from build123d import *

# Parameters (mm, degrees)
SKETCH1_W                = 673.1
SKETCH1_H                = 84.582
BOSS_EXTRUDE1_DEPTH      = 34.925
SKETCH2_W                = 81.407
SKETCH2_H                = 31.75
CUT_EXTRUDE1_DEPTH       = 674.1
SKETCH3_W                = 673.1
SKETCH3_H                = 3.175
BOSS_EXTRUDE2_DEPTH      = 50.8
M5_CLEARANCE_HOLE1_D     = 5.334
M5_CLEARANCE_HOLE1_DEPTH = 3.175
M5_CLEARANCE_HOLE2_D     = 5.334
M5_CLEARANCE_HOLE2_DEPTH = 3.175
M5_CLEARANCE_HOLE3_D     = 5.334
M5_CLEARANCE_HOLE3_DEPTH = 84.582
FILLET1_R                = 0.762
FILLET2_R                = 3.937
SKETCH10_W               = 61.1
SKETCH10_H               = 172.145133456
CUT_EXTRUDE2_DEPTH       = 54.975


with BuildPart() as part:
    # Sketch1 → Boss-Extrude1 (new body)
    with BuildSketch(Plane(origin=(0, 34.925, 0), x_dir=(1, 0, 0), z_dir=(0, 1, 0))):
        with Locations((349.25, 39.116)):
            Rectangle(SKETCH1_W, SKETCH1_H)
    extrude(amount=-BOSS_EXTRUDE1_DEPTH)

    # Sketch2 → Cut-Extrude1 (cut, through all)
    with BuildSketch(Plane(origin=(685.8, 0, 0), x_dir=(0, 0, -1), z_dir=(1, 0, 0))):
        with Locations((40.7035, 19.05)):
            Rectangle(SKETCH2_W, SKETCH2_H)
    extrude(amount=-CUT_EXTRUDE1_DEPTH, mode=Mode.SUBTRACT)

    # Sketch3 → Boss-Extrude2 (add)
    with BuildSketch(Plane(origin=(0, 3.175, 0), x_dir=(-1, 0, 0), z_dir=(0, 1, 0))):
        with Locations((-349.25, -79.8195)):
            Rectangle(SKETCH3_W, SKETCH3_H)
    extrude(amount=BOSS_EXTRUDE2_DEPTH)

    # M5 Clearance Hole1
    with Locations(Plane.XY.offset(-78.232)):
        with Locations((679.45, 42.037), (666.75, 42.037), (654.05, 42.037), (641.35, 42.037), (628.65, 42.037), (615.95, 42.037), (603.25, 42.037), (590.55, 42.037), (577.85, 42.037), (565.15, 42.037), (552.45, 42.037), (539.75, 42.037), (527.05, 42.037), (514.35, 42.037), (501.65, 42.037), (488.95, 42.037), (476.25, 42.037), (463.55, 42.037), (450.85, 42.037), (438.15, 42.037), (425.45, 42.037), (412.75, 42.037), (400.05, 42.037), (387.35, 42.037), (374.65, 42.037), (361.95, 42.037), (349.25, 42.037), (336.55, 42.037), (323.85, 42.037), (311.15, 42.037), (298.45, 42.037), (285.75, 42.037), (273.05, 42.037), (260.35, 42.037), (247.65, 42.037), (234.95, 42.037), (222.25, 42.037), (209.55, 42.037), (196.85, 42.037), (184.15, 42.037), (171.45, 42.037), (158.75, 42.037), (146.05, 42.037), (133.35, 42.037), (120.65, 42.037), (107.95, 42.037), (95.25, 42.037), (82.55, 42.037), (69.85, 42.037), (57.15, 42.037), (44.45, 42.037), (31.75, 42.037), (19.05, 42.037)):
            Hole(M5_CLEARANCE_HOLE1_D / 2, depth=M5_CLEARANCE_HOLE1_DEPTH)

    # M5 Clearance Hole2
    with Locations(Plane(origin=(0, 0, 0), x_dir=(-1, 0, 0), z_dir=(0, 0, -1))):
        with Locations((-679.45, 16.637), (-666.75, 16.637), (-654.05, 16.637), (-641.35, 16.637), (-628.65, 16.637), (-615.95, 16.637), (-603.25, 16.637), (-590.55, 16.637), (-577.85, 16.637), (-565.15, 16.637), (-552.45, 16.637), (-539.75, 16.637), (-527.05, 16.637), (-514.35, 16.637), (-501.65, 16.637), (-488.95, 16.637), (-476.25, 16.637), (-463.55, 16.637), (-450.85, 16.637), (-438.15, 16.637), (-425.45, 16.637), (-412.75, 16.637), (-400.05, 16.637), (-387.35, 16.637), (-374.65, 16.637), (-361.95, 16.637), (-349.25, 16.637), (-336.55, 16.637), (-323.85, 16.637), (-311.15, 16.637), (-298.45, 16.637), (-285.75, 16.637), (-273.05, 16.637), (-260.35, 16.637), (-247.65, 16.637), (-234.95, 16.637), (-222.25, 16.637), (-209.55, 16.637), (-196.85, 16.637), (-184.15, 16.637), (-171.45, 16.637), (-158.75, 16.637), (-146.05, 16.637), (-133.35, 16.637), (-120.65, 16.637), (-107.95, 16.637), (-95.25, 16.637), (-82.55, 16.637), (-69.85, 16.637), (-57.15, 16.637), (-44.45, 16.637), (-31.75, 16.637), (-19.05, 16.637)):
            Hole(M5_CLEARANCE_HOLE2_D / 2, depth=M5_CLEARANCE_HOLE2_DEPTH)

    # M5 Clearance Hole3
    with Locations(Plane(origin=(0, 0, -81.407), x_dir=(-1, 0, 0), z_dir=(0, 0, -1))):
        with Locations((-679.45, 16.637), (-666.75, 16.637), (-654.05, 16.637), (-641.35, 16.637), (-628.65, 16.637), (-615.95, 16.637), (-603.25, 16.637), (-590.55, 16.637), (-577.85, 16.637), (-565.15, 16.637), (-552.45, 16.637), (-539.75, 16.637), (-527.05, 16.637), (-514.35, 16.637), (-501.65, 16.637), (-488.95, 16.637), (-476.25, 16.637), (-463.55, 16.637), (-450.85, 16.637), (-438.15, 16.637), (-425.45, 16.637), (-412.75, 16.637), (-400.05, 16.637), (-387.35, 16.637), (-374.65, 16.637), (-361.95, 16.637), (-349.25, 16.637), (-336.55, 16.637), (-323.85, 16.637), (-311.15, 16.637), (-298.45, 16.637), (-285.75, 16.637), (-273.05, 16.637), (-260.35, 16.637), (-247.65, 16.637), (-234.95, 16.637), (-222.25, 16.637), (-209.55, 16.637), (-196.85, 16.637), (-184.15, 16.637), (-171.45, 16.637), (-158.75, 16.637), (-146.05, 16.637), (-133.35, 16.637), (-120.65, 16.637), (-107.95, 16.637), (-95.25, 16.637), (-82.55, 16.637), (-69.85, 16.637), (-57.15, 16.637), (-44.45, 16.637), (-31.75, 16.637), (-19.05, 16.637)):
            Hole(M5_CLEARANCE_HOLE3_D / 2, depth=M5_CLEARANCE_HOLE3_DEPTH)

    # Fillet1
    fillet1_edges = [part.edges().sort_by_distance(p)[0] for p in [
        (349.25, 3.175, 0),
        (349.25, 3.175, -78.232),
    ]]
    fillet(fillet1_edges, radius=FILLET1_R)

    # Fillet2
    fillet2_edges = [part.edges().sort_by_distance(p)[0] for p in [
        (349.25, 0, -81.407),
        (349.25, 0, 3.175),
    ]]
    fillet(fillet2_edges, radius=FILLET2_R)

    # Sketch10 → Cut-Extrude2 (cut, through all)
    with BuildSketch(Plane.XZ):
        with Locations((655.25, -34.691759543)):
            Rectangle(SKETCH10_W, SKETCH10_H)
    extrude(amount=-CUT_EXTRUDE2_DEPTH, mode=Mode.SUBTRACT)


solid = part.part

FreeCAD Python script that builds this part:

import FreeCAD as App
import Part
import Sketcher

V = App.Vector
Q = App.Units.Quantity


def edges_at(feature, points):
    """Names of the edges that pass closest to the given points."""
    edges = feature.Shape.Edges
    near = lambda p: min(range(len(edges)), key=lambda i: edges[i].distToShape(Part.Vertex(*p))[0])
    return sorted({f"Edge{near(p) + 1}" for p in points})

doc = App.newDocument("Part")
body = doc.addObject("PartDesign::Body", "Body")

# Sketch on XZ plane
sketch1 = body.newObject("Sketcher::SketchObject", "Sketch")
sketch1.AttachmentSupport = (doc.getObject("XZ_Plane"), [""])
sketch1.MapMode = "FlatFace"
sketch1.AttachmentOffset = App.Placement(V(0, 0, -1.375 * 25.4), App.Rotation())
sketch1.addGeometry([
    Part.LineSegment(V(12.7, -81.407, 0), V(12.7, 3.175, 0)),
    Part.LineSegment(V(12.7, 3.175, 0), V(685.8, 3.175, 0)),
    Part.LineSegment(V(685.8, 3.175, 0), V(685.8, -81.407, 0)),
    Part.LineSegment(V(685.8, -81.407, 0), V(12.7, -81.407, 0)),
], False)
sketch1.addConstraint([
    Sketcher.Constraint("Coincident", 0, 2, 1, 1),
    Sketcher.Constraint("Coincident", 1, 2, 2, 1),
    Sketcher.Constraint("Coincident", 2, 2, 3, 1),
    Sketcher.Constraint("Coincident", 3, 2, 0, 1),
    Sketcher.Constraint("Vertical", 0),
    Sketcher.Constraint("Horizontal", 1),
    Sketcher.Constraint("Vertical", 2),
    Sketcher.Constraint("Horizontal", 3),
    Sketcher.Constraint("DistanceX", 1, 1, 1, 2, Q("26.5 in")),
    Sketcher.Constraint("DistanceX", -1, 1, 1, 2, Q("27 in")),
    Sketcher.Constraint("DistanceY", 0, 1, 0, 2, Q("3.33 in")),
    Sketcher.Constraint("DistanceY", -1, 1, 0, 2, Q("0.125 in")),
])
pad1 = body.newObject("PartDesign::Pad", "Pad")
pad1.Profile = sketch1
pad1.Length = Q("1.375 in")

# Sketch on YZ plane
sketch2 = body.newObject("Sketcher::SketchObject", "Sketch001")
sketch2.AttachmentSupport = (doc.getObject("YZ_Plane"), [""])
sketch2.MapMode = "FlatFace"
sketch2.AttachmentOffset = App.Placement(V(0, 0, 27 * 25.4), App.Rotation())
sketch2.addGeometry([
    Part.LineSegment(V(34.925, 0, 0), V(3.175, 0, 0)),
    Part.LineSegment(V(3.175, 0, 0), V(3.175, -81.407, 0)),
    Part.LineSegment(V(3.175, -81.407, 0), V(34.925, -81.407, 0)),
    Part.LineSegment(V(34.925, -81.407, 0), V(34.925, 0, 0)),
], False)
sketch2.addConstraint([
    Sketcher.Constraint("Coincident", 0, 2, 1, 1),
    Sketcher.Constraint("Coincident", 1, 2, 2, 1),
    Sketcher.Constraint("Coincident", 2, 2, 3, 1),
    Sketcher.Constraint("Coincident", 3, 2, 0, 1),
    Sketcher.Constraint("Horizontal", 0),
    Sketcher.Constraint("Vertical", 1),
    Sketcher.Constraint("Horizontal", 2),
    Sketcher.Constraint("Vertical", 3),
    Sketcher.Constraint("PointOnObject", 0, 2, -1),
    Sketcher.Constraint("DistanceX", 0, 2, 0, 1, Q("1.25 in")),
    Sketcher.Constraint("DistanceY", 1, 2, 1, 1, Q("3.205 in")),
    Sketcher.Constraint("DistanceX", -1, 1, 0, 2, Q("0.125 in")),
])
pocket1 = body.newObject("PartDesign::Pocket", "Pocket")
pocket1.Profile = sketch2
pocket1.Type = "ThroughAll"

# Sketch on XZ plane
sketch3 = body.newObject("Sketcher::SketchObject", "Sketch002")
sketch3.AttachmentSupport = (doc.getObject("XZ_Plane"), [""])
sketch3.MapMode = "FlatFace"
sketch3.AttachmentOffset = App.Placement(V(0, 0, -0.125 * 25.4), App.Rotation())
sketch3.addGeometry([
    Part.LineSegment(V(685.8, -78.232, 0), V(685.8, -81.407, 0)),
    Part.LineSegment(V(685.8, -81.407, 0), V(12.7, -81.407, 0)),
    Part.LineSegment(V(12.7, -81.407, 0), V(12.7, -78.232, 0)),
    Part.LineSegment(V(12.7, -78.232, 0), V(685.8, -78.232, 0)),
], False)
sketch3.addConstraint([
    Sketcher.Constraint("Coincident", 0, 2, 1, 1),
    Sketcher.Constraint("Coincident", 1, 2, 2, 1),
    Sketcher.Constraint("Coincident", 2, 2, 3, 1),
    Sketcher.Constraint("Coincident", 3, 2, 0, 1),
    Sketcher.Constraint("Vertical", 0),
    Sketcher.Constraint("Horizontal", 1),
    Sketcher.Constraint("Vertical", 2),
    Sketcher.Constraint("Horizontal", 3),
    Sketcher.Constraint("DistanceX", 1, 2, 1, 1, Q("26.5 in")),
    Sketcher.Constraint("DistanceX", -1, 1, 0, 2, Q("27 in")),
    Sketcher.Constraint("DistanceY", 0, 2, 0, 1, Q("0.125 in")),
    Sketcher.Constraint("DistanceY", 2, 2, -1, 1, Q("3.08 in")),
])
pad2 = body.newObject("PartDesign::Pad", "Pad001")
pad2.Profile = sketch3
pad2.Length = Q("2 in")
pad2.Reversed = True

# Sketch on XY plane
sketch4 = body.newObject("Sketcher::SketchObject", "Sketch003")
sketch4.AttachmentSupport = (doc.getObject("XY_Plane"), [""])
sketch4.MapMode = "FlatFace"
sketch4.AttachmentOffset = App.Placement(V(0, 0, -3.08 * 25.4), App.Rotation())
sketch4.addGeometry([
    Part.Circle(V(679.45, 42.037, 0), V(0, 0, 1), 2.667),  # 0
    Part.Circle(V(666.75, 42.037, 0), V(0, 0, 1), 2.667),  # 1
    Part.Circle(V(654.05, 42.037, 0), V(0, 0, 1), 2.667),  # 2
    Part.Circle(V(641.35, 42.037, 0), V(0, 0, 1), 2.667),  # 3
    Part.Circle(V(628.65, 42.037, 0), V(0, 0, 1), 2.667),  # 4
    Part.Circle(V(615.95, 42.037, 0), V(0, 0, 1), 2.667),  # 5
    Part.Circle(V(603.25, 42.037, 0), V(0, 0, 1), 2.667),  # 6
    Part.Circle(V(590.55, 42.037, 0), V(0, 0, 1), 2.667),  # 7
    Part.Circle(V(577.85, 42.037, 0), V(0, 0, 1), 2.667),  # 8
    Part.Circle(V(565.15, 42.037, 0), V(0, 0, 1), 2.667),  # 9
    Part.Circle(V(552.45, 42.037, 0), V(0, 0, 1), 2.667),  # 10
    Part.Circle(V(539.75, 42.037, 0), V(0, 0, 1), 2.667),  # 11
    Part.Circle(V(527.05, 42.037, 0), V(0, 0, 1), 2.667),  # 12
    Part.Circle(V(514.35, 42.037, 0), V(0, 0, 1), 2.667),  # 13
    Part.Circle(V(501.65, 42.037, 0), V(0, 0, 1), 2.667),  # 14
    Part.Circle(V(488.95, 42.037, 0), V(0, 0, 1), 2.667),  # 15
    Part.Circle(V(476.25, 42.037, 0), V(0, 0, 1), 2.667),  # 16
    Part.Circle(V(463.55, 42.037, 0), V(0, 0, 1), 2.667),  # 17
    Part.Circle(V(450.85, 42.037, 0), V(0, 0, 1), 2.667),  # 18
    Part.Circle(V(438.15, 42.037, 0), V(0, 0, 1), 2.667),  # 19
    Part.Circle(V(425.45, 42.037, 0), V(0, 0, 1), 2.667),  # 20
    Part.Circle(V(412.75, 42.037, 0), V(0, 0, 1), 2.667),  # 21
    Part.Circle(V(400.05, 42.037, 0), V(0, 0, 1), 2.667),  # 22
    Part.Circle(V(387.35, 42.037, 0), V(0, 0, 1), 2.667),  # 23
    Part.Circle(V(374.65, 42.037, 0), V(0, 0, 1), 2.667),  # 24
    Part.Circle(V(361.95, 42.037, 0), V(0, 0, 1), 2.667),  # 25
    Part.Circle(V(349.25, 42.037, 0), V(0, 0, 1), 2.667),  # 26
    Part.Circle(V(336.55, 42.037, 0), V(0, 0, 1), 2.667),  # 27
    Part.Circle(V(323.85, 42.037, 0), V(0, 0, 1), 2.667),  # 28
    Part.Circle(V(311.15, 42.037, 0), V(0, 0, 1), 2.667),  # 29
    Part.Circle(V(298.45, 42.037, 0), V(0, 0, 1), 2.667),  # 30
    Part.Circle(V(285.75, 42.037, 0), V(0, 0, 1), 2.667),  # 31
    Part.Circle(V(273.05, 42.037, 0), V(0, 0, 1), 2.667),  # 32
    Part.Circle(V(260.35, 42.037, 0), V(0, 0, 1), 2.667),  # 33
    Part.Circle(V(247.65, 42.037, 0), V(0, 0, 1), 2.667),  # 34
    Part.Circle(V(234.95, 42.037, 0), V(0, 0, 1), 2.667),  # 35
    Part.Circle(V(222.25, 42.037, 0), V(0, 0, 1), 2.667),  # 36
    Part.Circle(V(209.55, 42.037, 0), V(0, 0, 1), 2.667),  # 37
    Part.Circle(V(196.85, 42.037, 0), V(0, 0, 1), 2.667),  # 38
    Part.Circle(V(184.15, 42.037, 0), V(0, 0, 1), 2.667),  # 39
    Part.Circle(V(171.45, 42.037, 0), V(0, 0, 1), 2.667),  # 40
    Part.Circle(V(158.75, 42.037, 0), V(0, 0, 1), 2.667),  # 41
    Part.Circle(V(146.05, 42.037, 0), V(0, 0, 1), 2.667),  # 42
    Part.Circle(V(133.35, 42.037, 0), V(0, 0, 1), 2.667),  # 43
    Part.Circle(V(120.65, 42.037, 0), V(0, 0, 1), 2.667),  # 44
    Part.Circle(V(107.95, 42.037, 0), V(0, 0, 1), 2.667),  # 45
    Part.Circle(V(95.25, 42.037, 0), V(0, 0, 1), 2.667),  # 46
    Part.Circle(V(82.55, 42.037, 0), V(0, 0, 1), 2.667),  # 47
    Part.Circle(V(69.85, 42.037, 0), V(0, 0, 1), 2.667),  # 48
    Part.Circle(V(57.15, 42.037, 0), V(0, 0, 1), 2.667),  # 49
    Part.Circle(V(44.45, 42.037, 0), V(0, 0, 1), 2.667),  # 50
    Part.Circle(V(31.75, 42.037, 0), V(0, 0, 1), 2.667),  # 51
    Part.Circle(V(19.05, 42.037, 0), V(0, 0, 1), 2.667),  # 52
], False)
sketch4.addConstraint([
    Sketcher.Constraint("Equal", 0, 1),
    Sketcher.Constraint("Equal", 1, 2),
    Sketcher.Constraint("Equal", 2, 3),
    Sketcher.Constraint("Equal", 3, 4),
    Sketcher.Constraint("Equal", 4, 5),
    Sketcher.Constraint("Equal", 5, 6),
    Sketcher.Constraint("Equal", 6, 7),
    Sketcher.Constraint("Equal", 7, 8),
    Sketcher.Constraint("Equal", 8, 9),
    Sketcher.Constraint("Equal", 9, 10),
    Sketcher.Constraint("Equal", 10, 11),
    Sketcher.Constraint("Equal", 11, 12),
    Sketcher.Constraint("Equal", 12, 13),
    Sketcher.Constraint("Equal", 13, 14),
    Sketcher.Constraint("Equal", 14, 15),
    Sketcher.Constraint("Equal", 15, 16),
    Sketcher.Constraint("Equal", 16, 17),
    Sketcher.Constraint("Equal", 17, 18),
    Sketcher.Constraint("Equal", 18, 19),
    Sketcher.Constraint("Equal", 19, 20),
    Sketcher.Constraint("Equal", 20, 21),
    Sketcher.Constraint("Equal", 21, 22),
    Sketcher.Constraint("Equal", 22, 23),
    Sketcher.Constraint("Equal", 23, 24),
    Sketcher.Constraint("Equal", 24, 25),
    Sketcher.Constraint("Equal", 25, 26),
    Sketcher.Constraint("Equal", 26, 27),
    Sketcher.Constraint("Equal", 27, 28),
    Sketcher.Constraint("Equal", 28, 29),
    Sketcher.Constraint("Equal", 29, 30),
    Sketcher.Constraint("Equal", 30, 31),
    Sketcher.Constraint("Equal", 31, 32),
    Sketcher.Constraint("Equal", 32, 33),
    Sketcher.Constraint("Equal", 33, 34),
    Sketcher.Constraint("Equal", 34, 35),
    Sketcher.Constraint("Equal", 35, 36),
    Sketcher.Constraint("Equal", 36, 37),
    Sketcher.Constraint("Equal", 37, 38),
    Sketcher.Constraint("Equal", 38, 39),
    Sketcher.Constraint("Equal", 39, 40),
    Sketcher.Constraint("Equal", 40, 41),
    Sketcher.Constraint("Equal", 41, 42),
    Sketcher.Constraint("Equal", 42, 43),
    Sketcher.Constraint("Equal", 43, 44),
    Sketcher.Constraint("Equal", 44, 45),
    Sketcher.Constraint("Equal", 45, 46),
    Sketcher.Constraint("Equal", 46, 47),
    Sketcher.Constraint("Equal", 47, 48),
    Sketcher.Constraint("Equal", 48, 49),
    Sketcher.Constraint("Equal", 49, 50),
    Sketcher.Constraint("Equal", 50, 51),
    Sketcher.Constraint("Equal", 51, 52),
    Sketcher.Constraint("Horizontal", 0, 3, 1, 3),
    Sketcher.Constraint("Horizontal", 1, 3, 2, 3),
    Sketcher.Constraint("Horizontal", 2, 3, 3, 3),
    Sketcher.Constraint("Horizontal", 3, 3, 4, 3),
    Sketcher.Constraint("Horizontal", 4, 3, 5, 3),
    Sketcher.Constraint("Horizontal", 5, 3, 6, 3),
    Sketcher.Constraint("Horizontal", 6, 3, 7, 3),
    Sketcher.Constraint("Horizontal", 7, 3, 8, 3),
    Sketcher.Constraint("Horizontal", 8, 3, 9, 3),
    Sketcher.Constraint("Horizontal", 9, 3, 10, 3),
    Sketcher.Constraint("Horizontal", 10, 3, 11, 3),
    Sketcher.Constraint("Horizontal", 11, 3, 12, 3),
    Sketcher.Constraint("Horizontal", 12, 3, 13, 3),
    Sketcher.Constraint("Horizontal", 13, 3, 14, 3),
    Sketcher.Constraint("Horizontal", 14, 3, 15, 3),
    Sketcher.Constraint("Horizontal", 15, 3, 16, 3),
    Sketcher.Constraint("Horizontal", 16, 3, 17, 3),
    Sketcher.Constraint("Horizontal", 17, 3, 18, 3),
    Sketcher.Constraint("Horizontal", 18, 3, 19, 3),
    Sketcher.Constraint("Horizontal", 19, 3, 20, 3),
    Sketcher.Constraint("Horizontal", 20, 3, 21, 3),
    Sketcher.Constraint("Horizontal", 21, 3, 22, 3),
    Sketcher.Constraint("Horizontal", 22, 3, 23, 3),
    Sketcher.Constraint("Horizontal", 23, 3, 24, 3),
    Sketcher.Constraint("Horizontal", 24, 3, 25, 3),
    Sketcher.Constraint("Horizontal", 25, 3, 26, 3),
    Sketcher.Constraint("Horizontal", 26, 3, 27, 3),
    Sketcher.Constraint("Horizontal", 27, 3, 28, 3),
    Sketcher.Constraint("Horizontal", 28, 3, 29, 3),
    Sketcher.Constraint("Horizontal", 29, 3, 30, 3),
    Sketcher.Constraint("Horizontal", 30, 3, 31, 3),
    Sketcher.Constraint("Horizontal", 31, 3, 32, 3),
    Sketcher.Constraint("Horizontal", 32, 3, 33, 3),
    Sketcher.Constraint("Horizontal", 33, 3, 34, 3),
    Sketcher.Constraint("Horizontal", 34, 3, 35, 3),
    Sketcher.Constraint("Horizontal", 35, 3, 36, 3),
    Sketcher.Constraint("Horizontal", 36, 3, 37, 3),
    Sketcher.Constraint("Horizontal", 37, 3, 38, 3),
    Sketcher.Constraint("Horizontal", 38, 3, 39, 3),
    Sketcher.Constraint("Horizontal", 39, 3, 40, 3),
    Sketcher.Constraint("Horizontal", 40, 3, 41, 3),
    Sketcher.Constraint("Horizontal", 41, 3, 42, 3),
    Sketcher.Constraint("Horizontal", 42, 3, 43, 3),
    Sketcher.Constraint("Horizontal", 43, 3, 44, 3),
    Sketcher.Constraint("Horizontal", 44, 3, 45, 3),
    Sketcher.Constraint("Horizontal", 45, 3, 46, 3),
    Sketcher.Constraint("Horizontal", 46, 3, 47, 3),
    Sketcher.Constraint("Horizontal", 47, 3, 48, 3),
    Sketcher.Constraint("Horizontal", 48, 3, 49, 3),
    Sketcher.Constraint("Horizontal", 49, 3, 50, 3),
    Sketcher.Constraint("Horizontal", 50, 3, 51, 3),
    Sketcher.Constraint("Horizontal", 51, 3, 52, 3),
    Sketcher.Constraint("Diameter", 0, Q("0.21 in")),
    Sketcher.Constraint("DistanceX", 2, 3, 0, 3, Q("1 in")),
    Sketcher.Constraint("DistanceX", 3, 3, 1, 3, Q("1 in")),
    Sketcher.Constraint("DistanceX", 4, 3, 2, 3, Q("1 in")),
    Sketcher.Constraint("DistanceX", 5, 3, 3, 3, Q("1 in")),
    Sketcher.Constraint("DistanceX", 6, 3, 4, 3, Q("1 in")),
    Sketcher.Constraint("DistanceX", 7, 3, 5, 3, Q("1 in")),
    Sketcher.Constraint("DistanceX", 8, 3, 6, 3, Q("1 in")),
    Sketcher.Constraint("DistanceX", 9, 3, 7, 3, Q("1 in")),
    Sketcher.Constraint("DistanceX", 10, 3, 8, 3, Q("1 in")),
    Sketcher.Constraint("DistanceX", 11, 3, 9, 3, Q("1 in")),
    Sketcher.Constraint("DistanceX", 12, 3, 10, 3, Q("1 in")),
    Sketcher.Constraint("DistanceX", 13, 3, 11, 3, Q("1 in")),
    Sketcher.Constraint("DistanceX", 14, 3, 12, 3, Q("1 in")),
    Sketcher.Constraint("DistanceX", 15, 3, 13, 3, Q("1 in")),
    Sketcher.Constraint("DistanceX", 16, 3, 14, 3, Q("1 in")),
    Sketcher.Constraint("DistanceX", 17, 3, 15, 3, Q("1 in")),
    Sketcher.Constraint("DistanceX", 18, 3, 16, 3, Q("1 in")),
    Sketcher.Constraint("DistanceX", 19, 3, 17, 3, Q("1 in")),
    Sketcher.Constraint("DistanceX", 20, 3, 18, 3, Q("1 in")),
    Sketcher.Constraint("DistanceX", 21, 3, 19, 3, Q("1 in")),
    Sketcher.Constraint("DistanceX", 22, 3, 20, 3, Q("1 in")),
    Sketcher.Constraint("DistanceX", 23, 3, 21, 3, Q("1 in")),
    Sketcher.Constraint("DistanceX", 24, 3, 22, 3, Q("1 in")),
    Sketcher.Constraint("DistanceX", 25, 3, 23, 3, Q("1 in")),
    Sketcher.Constraint("DistanceX", 26, 3, 24, 3, Q("1 in")),
    Sketcher.Constraint("DistanceX", 27, 3, 25, 3, Q("1 in")),
    Sketcher.Constraint("DistanceX", 28, 3, 26, 3, Q("1 in")),
    Sketcher.Constraint("DistanceX", 29, 3, 27, 3, Q("1 in")),
    Sketcher.Constraint("DistanceX", 30, 3, 28, 3, Q("1 in")),
    Sketcher.Constraint("DistanceX", 31, 3, 29, 3, Q("1 in")),
    Sketcher.Constraint("DistanceX", 32, 3, 30, 3, Q("1 in")),
    Sketcher.Constraint("DistanceX", 33, 3, 31, 3, Q("1 in")),
    Sketcher.Constraint("DistanceX", 34, 3, 32, 3, Q("1 in")),
    Sketcher.Constraint("DistanceX", 35, 3, 33, 3, Q("1 in")),
    Sketcher.Constraint("DistanceX", 36, 3, 34, 3, Q("1 in")),
    Sketcher.Constraint("DistanceX", 37, 3, 35, 3, Q("1 in")),
    Sketcher.Constraint("DistanceX", 38, 3, 36, 3, Q("1 in")),
    Sketcher.Constraint("DistanceX", 39, 3, 37, 3, Q("1 in")),
    Sketcher.Constraint("DistanceX", 40, 3, 38, 3, Q("1 in")),
    Sketcher.Constraint("DistanceX", 41, 3, 39, 3, Q("1 in")),
    Sketcher.Constraint("DistanceX", 42, 3, 40, 3, Q("1 in")),
    Sketcher.Constraint("DistanceX", 43, 3, 41, 3, Q("1 in")),
    Sketcher.Constraint("DistanceX", 44, 3, 42, 3, Q("1 in")),
    Sketcher.Constraint("DistanceX", 45, 3, 43, 3, Q("1 in")),
    Sketcher.Constraint("DistanceX", 46, 3, 44, 3, Q("1 in")),
    Sketcher.Constraint("DistanceX", 47, 3, 45, 3, Q("1 in")),
    Sketcher.Constraint("DistanceX", 48, 3, 46, 3, Q("1 in")),
    Sketcher.Constraint("DistanceX", 49, 3, 47, 3, Q("1 in")),
    Sketcher.Constraint("DistanceX", 50, 3, 48, 3, Q("1 in")),
    Sketcher.Constraint("DistanceX", 51, 3, 49, 3, Q("1 in")),
    Sketcher.Constraint("DistanceX", 52, 3, 50, 3, Q("1 in")),
    Sketcher.Constraint("DistanceX", 1, 3, 0, 3, Q("0.5 in")),
    Sketcher.Constraint("DistanceX", -1, 1, 0, 3, Q("26.75 in")),
    Sketcher.Constraint("DistanceY", -1, 1, 0, 3, Q("1.655 in")),
])
doc.recompute()
hole = body.newObject("PartDesign::Hole", "Hole")
hole.Profile = sketch4
hole.ThreadType = "None"
hole.Diameter = Q("0.21 in")
hole.DepthType = "Dimension"
hole.Depth = Q("0.125 in")
hole.DrillPoint = "Flat"

# Sketch on XY plane
sketch5 = body.newObject("Sketcher::SketchObject", "Sketch004")
sketch5.AttachmentSupport = (doc.getObject("XY_Plane"), [""])
sketch5.MapMode = "FlatFace"
sketch5.addGeometry([
    Part.Circle(V(679.45, 16.637, 0), V(0, 0, 1), 2.667),  # 0
    Part.Circle(V(666.75, 16.637, 0), V(0, 0, 1), 2.667),  # 1
    Part.Circle(V(654.05, 16.637, 0), V(0, 0, 1), 2.667),  # 2
    Part.Circle(V(641.35, 16.637, 0), V(0, 0, 1), 2.667),  # 3
    Part.Circle(V(628.65, 16.637, 0), V(0, 0, 1), 2.667),  # 4
    Part.Circle(V(615.95, 16.637, 0), V(0, 0, 1), 2.667),  # 5
    Part.Circle(V(603.25, 16.637, 0), V(0, 0, 1), 2.667),  # 6
    Part.Circle(V(590.55, 16.637, 0), V(0, 0, 1), 2.667),  # 7
    Part.Circle(V(577.85, 16.637, 0), V(0, 0, 1), 2.667),  # 8
    Part.Circle(V(565.15, 16.637, 0), V(0, 0, 1), 2.667),  # 9
    Part.Circle(V(552.45, 16.637, 0), V(0, 0, 1), 2.667),  # 10
    Part.Circle(V(539.75, 16.637, 0), V(0, 0, 1), 2.667),  # 11
    Part.Circle(V(527.05, 16.637, 0), V(0, 0, 1), 2.667),  # 12
    Part.Circle(V(514.35, 16.637, 0), V(0, 0, 1), 2.667),  # 13
    Part.Circle(V(501.65, 16.637, 0), V(0, 0, 1), 2.667),  # 14
    Part.Circle(V(488.95, 16.637, 0), V(0, 0, 1), 2.667),  # 15
    Part.Circle(V(476.25, 16.637, 0), V(0, 0, 1), 2.667),  # 16
    Part.Circle(V(463.55, 16.637, 0), V(0, 0, 1), 2.667),  # 17
    Part.Circle(V(450.85, 16.637, 0), V(0, 0, 1), 2.667),  # 18
    Part.Circle(V(438.15, 16.637, 0), V(0, 0, 1), 2.667),  # 19
    Part.Circle(V(425.45, 16.637, 0), V(0, 0, 1), 2.667),  # 20
    Part.Circle(V(412.75, 16.637, 0), V(0, 0, 1), 2.667),  # 21
    Part.Circle(V(400.05, 16.637, 0), V(0, 0, 1), 2.667),  # 22
    Part.Circle(V(387.35, 16.637, 0), V(0, 0, 1), 2.667),  # 23
    Part.Circle(V(374.65, 16.637, 0), V(0, 0, 1), 2.667),  # 24
    Part.Circle(V(361.95, 16.637, 0), V(0, 0, 1), 2.667),  # 25
    Part.Circle(V(349.25, 16.637, 0), V(0, 0, 1), 2.667),  # 26
    Part.Circle(V(336.55, 16.637, 0), V(0, 0, 1), 2.667),  # 27
    Part.Circle(V(323.85, 16.637, 0), V(0, 0, 1), 2.667),  # 28
    Part.Circle(V(311.15, 16.637, 0), V(0, 0, 1), 2.667),  # 29
    Part.Circle(V(298.45, 16.637, 0), V(0, 0, 1), 2.667),  # 30
    Part.Circle(V(285.75, 16.637, 0), V(0, 0, 1), 2.667),  # 31
    Part.Circle(V(273.05, 16.637, 0), V(0, 0, 1), 2.667),  # 32
    Part.Circle(V(260.35, 16.637, 0), V(0, 0, 1), 2.667),  # 33
    Part.Circle(V(247.65, 16.637, 0), V(0, 0, 1), 2.667),  # 34
    Part.Circle(V(234.95, 16.637, 0), V(0, 0, 1), 2.667),  # 35
    Part.Circle(V(222.25, 16.637, 0), V(0, 0, 1), 2.667),  # 36
    Part.Circle(V(209.55, 16.637, 0), V(0, 0, 1), 2.667),  # 37
    Part.Circle(V(196.85, 16.637, 0), V(0, 0, 1), 2.667),  # 38
    Part.Circle(V(184.15, 16.637, 0), V(0, 0, 1), 2.667),  # 39
    Part.Circle(V(171.45, 16.637, 0), V(0, 0, 1), 2.667),  # 40
    Part.Circle(V(158.75, 16.637, 0), V(0, 0, 1), 2.667),  # 41
    Part.Circle(V(146.05, 16.637, 0), V(0, 0, 1), 2.667),  # 42
    Part.Circle(V(133.35, 16.637, 0), V(0, 0, 1), 2.667),  # 43
    Part.Circle(V(120.65, 16.637, 0), V(0, 0, 1), 2.667),  # 44
    Part.Circle(V(107.95, 16.637, 0), V(0, 0, 1), 2.667),  # 45
    Part.Circle(V(95.25, 16.637, 0), V(0, 0, 1), 2.667),  # 46
    Part.Circle(V(82.55, 16.637, 0), V(0, 0, 1), 2.667),  # 47
    Part.Circle(V(69.85, 16.637, 0), V(0, 0, 1), 2.667),  # 48
    Part.Circle(V(57.15, 16.637, 0), V(0, 0, 1), 2.667),  # 49
    Part.Circle(V(44.45, 16.637, 0), V(0, 0, 1), 2.667),  # 50
    Part.Circle(V(31.75, 16.637, 0), V(0, 0, 1), 2.667),  # 51
    Part.Circle(V(19.05, 16.637, 0), V(0, 0, 1), 2.667),  # 52
], False)
sketch5.addConstraint([
    Sketcher.Constraint("Equal", 0, 1),
    Sketcher.Constraint("Equal", 1, 2),
    Sketcher.Constraint("Equal", 2, 3),
    Sketcher.Constraint("Equal", 3, 4),
    Sketcher.Constraint("Equal", 4, 5),
    Sketcher.Constraint("Equal", 5, 6),
    Sketcher.Constraint("Equal", 6, 7),
    Sketcher.Constraint("Equal", 7, 8),
    Sketcher.Constraint("Equal", 8, 9),
    Sketcher.Constraint("Equal", 9, 10),
    Sketcher.Constraint("Equal", 10, 11),
    Sketcher.Constraint("Equal", 11, 12),
    Sketcher.Constraint("Equal", 12, 13),
    Sketcher.Constraint("Equal", 13, 14),
    Sketcher.Constraint("Equal", 14, 15),
    Sketcher.Constraint("Equal", 15, 16),
    Sketcher.Constraint("Equal", 16, 17),
    Sketcher.Constraint("Equal", 17, 18),
    Sketcher.Constraint("Equal", 18, 19),
    Sketcher.Constraint("Equal", 19, 20),
    Sketcher.Constraint("Equal", 20, 21),
    Sketcher.Constraint("Equal", 21, 22),
    Sketcher.Constraint("Equal", 22, 23),
    Sketcher.Constraint("Equal", 23, 24),
    Sketcher.Constraint("Equal", 24, 25),
    Sketcher.Constraint("Equal", 25, 26),
    Sketcher.Constraint("Equal", 26, 27),
    Sketcher.Constraint("Equal", 27, 28),
    Sketcher.Constraint("Equal", 28, 29),
    Sketcher.Constraint("Equal", 29, 30),
    Sketcher.Constraint("Equal", 30, 31),
    Sketcher.Constraint("Equal", 31, 32),
    Sketcher.Constraint("Equal", 32, 33),
    Sketcher.Constraint("Equal", 33, 34),
    Sketcher.Constraint("Equal", 34, 35),
    Sketcher.Constraint("Equal", 35, 36),
    Sketcher.Constraint("Equal", 36, 37),
    Sketcher.Constraint("Equal", 37, 38),
    Sketcher.Constraint("Equal", 38, 39),
    Sketcher.Constraint("Equal", 39, 40),
    Sketcher.Constraint("Equal", 40, 41),
    Sketcher.Constraint("Equal", 41, 42),
    Sketcher.Constraint("Equal", 42, 43),
    Sketcher.Constraint("Equal", 43, 44),
    Sketcher.Constraint("Equal", 44, 45),
    Sketcher.Constraint("Equal", 45, 46),
    Sketcher.Constraint("Equal", 46, 47),
    Sketcher.Constraint("Equal", 47, 48),
    Sketcher.Constraint("Equal", 48, 49),
    Sketcher.Constraint("Equal", 49, 50),
    Sketcher.Constraint("Equal", 50, 51),
    Sketcher.Constraint("Equal", 51, 52),
    Sketcher.Constraint("Horizontal", 0, 3, 1, 3),
    Sketcher.Constraint("Horizontal", 1, 3, 2, 3),
    Sketcher.Constraint("Horizontal", 2, 3, 3, 3),
    Sketcher.Constraint("Horizontal", 3, 3, 4, 3),
    Sketcher.Constraint("Horizontal", 4, 3, 5, 3),
    Sketcher.Constraint("Horizontal", 5, 3, 6, 3),
    Sketcher.Constraint("Horizontal", 6, 3, 7, 3),
    Sketcher.Constraint("Horizontal", 7, 3, 8, 3),
    Sketcher.Constraint("Horizontal", 8, 3, 9, 3),
    Sketcher.Constraint("Horizontal", 9, 3, 10, 3),
    Sketcher.Constraint("Horizontal", 10, 3, 11, 3),
    Sketcher.Constraint("Horizontal", 11, 3, 12, 3),
    Sketcher.Constraint("Horizontal", 12, 3, 13, 3),
    Sketcher.Constraint("Horizontal", 13, 3, 14, 3),
    Sketcher.Constraint("Horizontal", 14, 3, 15, 3),
    Sketcher.Constraint("Horizontal", 15, 3, 16, 3),
    Sketcher.Constraint("Horizontal", 16, 3, 17, 3),
    Sketcher.Constraint("Horizontal", 17, 3, 18, 3),
    Sketcher.Constraint("Horizontal", 18, 3, 19, 3),
    Sketcher.Constraint("Horizontal", 19, 3, 20, 3),
    Sketcher.Constraint("Horizontal", 20, 3, 21, 3),
    Sketcher.Constraint("Horizontal", 21, 3, 22, 3),
    Sketcher.Constraint("Horizontal", 22, 3, 23, 3),
    Sketcher.Constraint("Horizontal", 23, 3, 24, 3),
    Sketcher.Constraint("Horizontal", 24, 3, 25, 3),
    Sketcher.Constraint("Horizontal", 25, 3, 26, 3),
    Sketcher.Constraint("Horizontal", 26, 3, 27, 3),
    Sketcher.Constraint("Horizontal", 27, 3, 28, 3),
    Sketcher.Constraint("Horizontal", 28, 3, 29, 3),
    Sketcher.Constraint("Horizontal", 29, 3, 30, 3),
    Sketcher.Constraint("Horizontal", 30, 3, 31, 3),
    Sketcher.Constraint("Horizontal", 31, 3, 32, 3),
    Sketcher.Constraint("Horizontal", 32, 3, 33, 3),
    Sketcher.Constraint("Horizontal", 33, 3, 34, 3),
    Sketcher.Constraint("Horizontal", 34, 3, 35, 3),
    Sketcher.Constraint("Horizontal", 35, 3, 36, 3),
    Sketcher.Constraint("Horizontal", 36, 3, 37, 3),
    Sketcher.Constraint("Horizontal", 37, 3, 38, 3),
    Sketcher.Constraint("Horizontal", 38, 3, 39, 3),
    Sketcher.Constraint("Horizontal", 39, 3, 40, 3),
    Sketcher.Constraint("Horizontal", 40, 3, 41, 3),
    Sketcher.Constraint("Horizontal", 41, 3, 42, 3),
    Sketcher.Constraint("Horizontal", 42, 3, 43, 3),
    Sketcher.Constraint("Horizontal", 43, 3, 44, 3),
    Sketcher.Constraint("Horizontal", 44, 3, 45, 3),
    Sketcher.Constraint("Horizontal", 45, 3, 46, 3),
    Sketcher.Constraint("Horizontal", 46, 3, 47, 3),
    Sketcher.Constraint("Horizontal", 47, 3, 48, 3),
    Sketcher.Constraint("Horizontal", 48, 3, 49, 3),
    Sketcher.Constraint("Horizontal", 49, 3, 50, 3),
    Sketcher.Constraint("Horizontal", 50, 3, 51, 3),
    Sketcher.Constraint("Horizontal", 51, 3, 52, 3),
    Sketcher.Constraint("Diameter", 0, Q("0.21 in")),
    Sketcher.Constraint("DistanceX", 2, 3, 0, 3, Q("1 in")),
    Sketcher.Constraint("DistanceX", 3, 3, 1, 3, Q("1 in")),
    Sketcher.Constraint("DistanceX", 4, 3, 2, 3, Q("1 in")),
    Sketcher.Constraint("DistanceX", 5, 3, 3, 3, Q("1 in")),
    Sketcher.Constraint("DistanceX", 6, 3, 4, 3, Q("1 in")),
    Sketcher.Constraint("DistanceX", 7, 3, 5, 3, Q("1 in")),
    Sketcher.Constraint("DistanceX", 8, 3, 6, 3, Q("1 in")),
    Sketcher.Constraint("DistanceX", 9, 3, 7, 3, Q("1 in")),
    Sketcher.Constraint("DistanceX", 10, 3, 8, 3, Q("1 in")),
    Sketcher.Constraint("DistanceX", 11, 3, 9, 3, Q("1 in")),
    Sketcher.Constraint("DistanceX", 12, 3, 10, 3, Q("1 in")),
    Sketcher.Constraint("DistanceX", 13, 3, 11, 3, Q("1 in")),
    Sketcher.Constraint("DistanceX", 14, 3, 12, 3, Q("1 in")),
    Sketcher.Constraint("DistanceX", 15, 3, 13, 3, Q("1 in")),
    Sketcher.Constraint("DistanceX", 16, 3, 14, 3, Q("1 in")),
    Sketcher.Constraint("DistanceX", 17, 3, 15, 3, Q("1 in")),
    Sketcher.Constraint("DistanceX", 18, 3, 16, 3, Q("1 in")),
    Sketcher.Constraint("DistanceX", 19, 3, 17, 3, Q("1 in")),
    Sketcher.Constraint("DistanceX", 20, 3, 18, 3, Q("1 in")),
    Sketcher.Constraint("DistanceX", 21, 3, 19, 3, Q("1 in")),
    Sketcher.Constraint("DistanceX", 22, 3, 20, 3, Q("1 in")),
    Sketcher.Constraint("DistanceX", 23, 3, 21, 3, Q("1 in")),
    Sketcher.Constraint("DistanceX", 24, 3, 22, 3, Q("1 in")),
    Sketcher.Constraint("DistanceX", 25, 3, 23, 3, Q("1 in")),
    Sketcher.Constraint("DistanceX", 26, 3, 24, 3, Q("1 in")),
    Sketcher.Constraint("DistanceX", 27, 3, 25, 3, Q("1 in")),
    Sketcher.Constraint("DistanceX", 28, 3, 26, 3, Q("1 in")),
    Sketcher.Constraint("DistanceX", 29, 3, 27, 3, Q("1 in")),
    Sketcher.Constraint("DistanceX", 30, 3, 28, 3, Q("1 in")),
    Sketcher.Constraint("DistanceX", 31, 3, 29, 3, Q("1 in")),
    Sketcher.Constraint("DistanceX", 32, 3, 30, 3, Q("1 in")),
    Sketcher.Constraint("DistanceX", 33, 3, 31, 3, Q("1 in")),
    Sketcher.Constraint("DistanceX", 34, 3, 32, 3, Q("1 in")),
    Sketcher.Constraint("DistanceX", 35, 3, 33, 3, Q("1 in")),
    Sketcher.Constraint("DistanceX", 36, 3, 34, 3, Q("1 in")),
    Sketcher.Constraint("DistanceX", 37, 3, 35, 3, Q("1 in")),
    Sketcher.Constraint("DistanceX", 38, 3, 36, 3, Q("1 in")),
    Sketcher.Constraint("DistanceX", 39, 3, 37, 3, Q("1 in")),
    Sketcher.Constraint("DistanceX", 40, 3, 38, 3, Q("1 in")),
    Sketcher.Constraint("DistanceX", 41, 3, 39, 3, Q("1 in")),
    Sketcher.Constraint("DistanceX", 42, 3, 40, 3, Q("1 in")),
    Sketcher.Constraint("DistanceX", 43, 3, 41, 3, Q("1 in")),
    Sketcher.Constraint("DistanceX", 44, 3, 42, 3, Q("1 in")),
    Sketcher.Constraint("DistanceX", 45, 3, 43, 3, Q("1 in")),
    Sketcher.Constraint("DistanceX", 46, 3, 44, 3, Q("1 in")),
    Sketcher.Constraint("DistanceX", 47, 3, 45, 3, Q("1 in")),
    Sketcher.Constraint("DistanceX", 48, 3, 46, 3, Q("1 in")),
    Sketcher.Constraint("DistanceX", 49, 3, 47, 3, Q("1 in")),
    Sketcher.Constraint("DistanceX", 50, 3, 48, 3, Q("1 in")),
    Sketcher.Constraint("DistanceX", 51, 3, 49, 3, Q("1 in")),
    Sketcher.Constraint("DistanceX", 52, 3, 50, 3, Q("1 in")),
    Sketcher.Constraint("DistanceX", 1, 3, 0, 3, Q("0.5 in")),
    Sketcher.Constraint("DistanceX", -1, 1, 0, 3, Q("26.75 in")),
    Sketcher.Constraint("DistanceY", -1, 1, 0, 3, Q("0.655 in")),
])
doc.recompute()
hole2 = body.newObject("PartDesign::Hole", "Hole001")
hole2.Profile = sketch5
hole2.ThreadType = "None"
hole2.Diameter = Q("0.21 in")
hole2.DepthType = "Dimension"
hole2.Depth = Q("0.125 in")
hole2.DrillPoint = "Flat"
hole2.Reversed = True

# Sketch on XY plane
sketch6 = body.newObject("Sketcher::SketchObject", "Sketch005")
sketch6.AttachmentSupport = (doc.getObject("XY_Plane"), [""])
sketch6.MapMode = "FlatFace"
sketch6.AttachmentOffset = App.Placement(V(0, 0, -3.205 * 25.4), App.Rotation())
sketch6.addGeometry([
    Part.Circle(V(679.45, 16.637, 0), V(0, 0, 1), 2.667),  # 0
    Part.Circle(V(666.75, 16.637, 0), V(0, 0, 1), 2.667),  # 1
    Part.Circle(V(654.05, 16.637, 0), V(0, 0, 1), 2.667),  # 2
    Part.Circle(V(641.35, 16.637, 0), V(0, 0, 1), 2.667),  # 3
    Part.Circle(V(628.65, 16.637, 0), V(0, 0, 1), 2.667),  # 4
    Part.Circle(V(615.95, 16.637, 0), V(0, 0, 1), 2.667),  # 5
    Part.Circle(V(603.25, 16.637, 0), V(0, 0, 1), 2.667),  # 6
    Part.Circle(V(590.55, 16.637, 0), V(0, 0, 1), 2.667),  # 7
    Part.Circle(V(577.85, 16.637, 0), V(0, 0, 1), 2.667),  # 8
    Part.Circle(V(565.15, 16.637, 0), V(0, 0, 1), 2.667),  # 9
    Part.Circle(V(552.45, 16.637, 0), V(0, 0, 1), 2.667),  # 10
    Part.Circle(V(539.75, 16.637, 0), V(0, 0, 1), 2.667),  # 11
    Part.Circle(V(527.05, 16.637, 0), V(0, 0, 1), 2.667),  # 12
    Part.Circle(V(514.35, 16.637, 0), V(0, 0, 1), 2.667),  # 13
    Part.Circle(V(501.65, 16.637, 0), V(0, 0, 1), 2.667),  # 14
    Part.Circle(V(488.95, 16.637, 0), V(0, 0, 1), 2.667),  # 15
    Part.Circle(V(476.25, 16.637, 0), V(0, 0, 1), 2.667),  # 16
    Part.Circle(V(463.55, 16.637, 0), V(0, 0, 1), 2.667),  # 17
    Part.Circle(V(450.85, 16.637, 0), V(0, 0, 1), 2.667),  # 18
    Part.Circle(V(438.15, 16.637, 0), V(0, 0, 1), 2.667),  # 19
    Part.Circle(V(425.45, 16.637, 0), V(0, 0, 1), 2.667),  # 20
    Part.Circle(V(412.75, 16.637, 0), V(0, 0, 1), 2.667),  # 21
    Part.Circle(V(400.05, 16.637, 0), V(0, 0, 1), 2.667),  # 22
    Part.Circle(V(387.35, 16.637, 0), V(0, 0, 1), 2.667),  # 23
    Part.Circle(V(374.65, 16.637, 0), V(0, 0, 1), 2.667),  # 24
    Part.Circle(V(361.95, 16.637, 0), V(0, 0, 1), 2.667),  # 25
    Part.Circle(V(349.25, 16.637, 0), V(0, 0, 1), 2.667),  # 26
    Part.Circle(V(336.55, 16.637, 0), V(0, 0, 1), 2.667),  # 27
    Part.Circle(V(323.85, 16.637, 0), V(0, 0, 1), 2.667),  # 28
    Part.Circle(V(311.15, 16.637, 0), V(0, 0, 1), 2.667),  # 29
    Part.Circle(V(298.45, 16.637, 0), V(0, 0, 1), 2.667),  # 30
    Part.Circle(V(285.75, 16.637, 0), V(0, 0, 1), 2.667),  # 31
    Part.Circle(V(273.05, 16.637, 0), V(0, 0, 1), 2.667),  # 32
    Part.Circle(V(260.35, 16.637, 0), V(0, 0, 1), 2.667),  # 33
    Part.Circle(V(247.65, 16.637, 0), V(0, 0, 1), 2.667),  # 34
    Part.Circle(V(234.95, 16.637, 0), V(0, 0, 1), 2.667),  # 35
    Part.Circle(V(222.25, 16.637, 0), V(0, 0, 1), 2.667),  # 36
    Part.Circle(V(209.55, 16.637, 0), V(0, 0, 1), 2.667),  # 37
    Part.Circle(V(196.85, 16.637, 0), V(0, 0, 1), 2.667),  # 38
    Part.Circle(V(184.15, 16.637, 0), V(0, 0, 1), 2.667),  # 39
    Part.Circle(V(171.45, 16.637, 0), V(0, 0, 1), 2.667),  # 40
    Part.Circle(V(158.75, 16.637, 0), V(0, 0, 1), 2.667),  # 41
    Part.Circle(V(146.05, 16.637, 0), V(0, 0, 1), 2.667),  # 42
    Part.Circle(V(133.35, 16.637, 0), V(0, 0, 1), 2.667),  # 43
    Part.Circle(V(120.65, 16.637, 0), V(0, 0, 1), 2.667),  # 44
    Part.Circle(V(107.95, 16.637, 0), V(0, 0, 1), 2.667),  # 45
    Part.Circle(V(95.25, 16.637, 0), V(0, 0, 1), 2.667),  # 46
    Part.Circle(V(82.55, 16.637, 0), V(0, 0, 1), 2.667),  # 47
    Part.Circle(V(69.85, 16.637, 0), V(0, 0, 1), 2.667),  # 48
    Part.Circle(V(57.15, 16.637, 0), V(0, 0, 1), 2.667),  # 49
    Part.Circle(V(44.45, 16.637, 0), V(0, 0, 1), 2.667),  # 50
    Part.Circle(V(31.75, 16.637, 0), V(0, 0, 1), 2.667),  # 51
    Part.Circle(V(19.05, 16.637, 0), V(0, 0, 1), 2.667),  # 52
], False)
sketch6.addConstraint([
    Sketcher.Constraint("Equal", 0, 1),
    Sketcher.Constraint("Equal", 1, 2),
    Sketcher.Constraint("Equal", 2, 3),
    Sketcher.Constraint("Equal", 3, 4),
    Sketcher.Constraint("Equal", 4, 5),
    Sketcher.Constraint("Equal", 5, 6),
    Sketcher.Constraint("Equal", 6, 7),
    Sketcher.Constraint("Equal", 7, 8),
    Sketcher.Constraint("Equal", 8, 9),
    Sketcher.Constraint("Equal", 9, 10),
    Sketcher.Constraint("Equal", 10, 11),
    Sketcher.Constraint("Equal", 11, 12),
    Sketcher.Constraint("Equal", 12, 13),
    Sketcher.Constraint("Equal", 13, 14),
    Sketcher.Constraint("Equal", 14, 15),
    Sketcher.Constraint("Equal", 15, 16),
    Sketcher.Constraint("Equal", 16, 17),
    Sketcher.Constraint("Equal", 17, 18),
    Sketcher.Constraint("Equal", 18, 19),
    Sketcher.Constraint("Equal", 19, 20),
    Sketcher.Constraint("Equal", 20, 21),
    Sketcher.Constraint("Equal", 21, 22),
    Sketcher.Constraint("Equal", 22, 23),
    Sketcher.Constraint("Equal", 23, 24),
    Sketcher.Constraint("Equal", 24, 25),
    Sketcher.Constraint("Equal", 25, 26),
    Sketcher.Constraint("Equal", 26, 27),
    Sketcher.Constraint("Equal", 27, 28),
    Sketcher.Constraint("Equal", 28, 29),
    Sketcher.Constraint("Equal", 29, 30),
    Sketcher.Constraint("Equal", 30, 31),
    Sketcher.Constraint("Equal", 31, 32),
    Sketcher.Constraint("Equal", 32, 33),
    Sketcher.Constraint("Equal", 33, 34),
    Sketcher.Constraint("Equal", 34, 35),
    Sketcher.Constraint("Equal", 35, 36),
    Sketcher.Constraint("Equal", 36, 37),
    Sketcher.Constraint("Equal", 37, 38),
    Sketcher.Constraint("Equal", 38, 39),
    Sketcher.Constraint("Equal", 39, 40),
    Sketcher.Constraint("Equal", 40, 41),
    Sketcher.Constraint("Equal", 41, 42),
    Sketcher.Constraint("Equal", 42, 43),
    Sketcher.Constraint("Equal", 43, 44),
    Sketcher.Constraint("Equal", 44, 45),
    Sketcher.Constraint("Equal", 45, 46),
    Sketcher.Constraint("Equal", 46, 47),
    Sketcher.Constraint("Equal", 47, 48),
    Sketcher.Constraint("Equal", 48, 49),
    Sketcher.Constraint("Equal", 49, 50),
    Sketcher.Constraint("Equal", 50, 51),
    Sketcher.Constraint("Equal", 51, 52),
    Sketcher.Constraint("Horizontal", 0, 3, 1, 3),
    Sketcher.Constraint("Horizontal", 1, 3, 2, 3),
    Sketcher.Constraint("Horizontal", 2, 3, 3, 3),
    Sketcher.Constraint("Horizontal", 3, 3, 4, 3),
    Sketcher.Constraint("Horizontal", 4, 3, 5, 3),
    Sketcher.Constraint("Horizontal", 5, 3, 6, 3),
    Sketcher.Constraint("Horizontal", 6, 3, 7, 3),
    Sketcher.Constraint("Horizontal", 7, 3, 8, 3),
    Sketcher.Constraint("Horizontal", 8, 3, 9, 3),
    Sketcher.Constraint("Horizontal", 9, 3, 10, 3),
    Sketcher.Constraint("Horizontal", 10, 3, 11, 3),
    Sketcher.Constraint("Horizontal", 11, 3, 12, 3),
    Sketcher.Constraint("Horizontal", 12, 3, 13, 3),
    Sketcher.Constraint("Horizontal", 13, 3, 14, 3),
    Sketcher.Constraint("Horizontal", 14, 3, 15, 3),
    Sketcher.Constraint("Horizontal", 15, 3, 16, 3),
    Sketcher.Constraint("Horizontal", 16, 3, 17, 3),
    Sketcher.Constraint("Horizontal", 17, 3, 18, 3),
    Sketcher.Constraint("Horizontal", 18, 3, 19, 3),
    Sketcher.Constraint("Horizontal", 19, 3, 20, 3),
    Sketcher.Constraint("Horizontal", 20, 3, 21, 3),
    Sketcher.Constraint("Horizontal", 21, 3, 22, 3),
    Sketcher.Constraint("Horizontal", 22, 3, 23, 3),
    Sketcher.Constraint("Horizontal", 23, 3, 24, 3),
    Sketcher.Constraint("Horizontal", 24, 3, 25, 3),
    Sketcher.Constraint("Horizontal", 25, 3, 26, 3),
    Sketcher.Constraint("Horizontal", 26, 3, 27, 3),
    Sketcher.Constraint("Horizontal", 27, 3, 28, 3),
    Sketcher.Constraint("Horizontal", 28, 3, 29, 3),
    Sketcher.Constraint("Horizontal", 29, 3, 30, 3),
    Sketcher.Constraint("Horizontal", 30, 3, 31, 3),
    Sketcher.Constraint("Horizontal", 31, 3, 32, 3),
    Sketcher.Constraint("Horizontal", 32, 3, 33, 3),
    Sketcher.Constraint("Horizontal", 33, 3, 34, 3),
    Sketcher.Constraint("Horizontal", 34, 3, 35, 3),
    Sketcher.Constraint("Horizontal", 35, 3, 36, 3),
    Sketcher.Constraint("Horizontal", 36, 3, 37, 3),
    Sketcher.Constraint("Horizontal", 37, 3, 38, 3),
    Sketcher.Constraint("Horizontal", 38, 3, 39, 3),
    Sketcher.Constraint("Horizontal", 39, 3, 40, 3),
    Sketcher.Constraint("Horizontal", 40, 3, 41, 3),
    Sketcher.Constraint("Horizontal", 41, 3, 42, 3),
    Sketcher.Constraint("Horizontal", 42, 3, 43, 3),
    Sketcher.Constraint("Horizontal", 43, 3, 44, 3),
    Sketcher.Constraint("Horizontal", 44, 3, 45, 3),
    Sketcher.Constraint("Horizontal", 45, 3, 46, 3),
    Sketcher.Constraint("Horizontal", 46, 3, 47, 3),
    Sketcher.Constraint("Horizontal", 47, 3, 48, 3),
    Sketcher.Constraint("Horizontal", 48, 3, 49, 3),
    Sketcher.Constraint("Horizontal", 49, 3, 50, 3),
    Sketcher.Constraint("Horizontal", 50, 3, 51, 3),
    Sketcher.Constraint("Horizontal", 51, 3, 52, 3),
    Sketcher.Constraint("Diameter", 0, Q("0.21 in")),
    Sketcher.Constraint("DistanceX", 2, 3, 0, 3, Q("1 in")),
    Sketcher.Constraint("DistanceX", 3, 3, 1, 3, Q("1 in")),
    Sketcher.Constraint("DistanceX", 4, 3, 2, 3, Q("1 in")),
    Sketcher.Constraint("DistanceX", 5, 3, 3, 3, Q("1 in")),
    Sketcher.Constraint("DistanceX", 6, 3, 4, 3, Q("1 in")),
    Sketcher.Constraint("DistanceX", 7, 3, 5, 3, Q("1 in")),
    Sketcher.Constraint("DistanceX", 8, 3, 6, 3, Q("1 in")),
    Sketcher.Constraint("DistanceX", 9, 3, 7, 3, Q("1 in")),
    Sketcher.Constraint("DistanceX", 10, 3, 8, 3, Q("1 in")),
    Sketcher.Constraint("DistanceX", 11, 3, 9, 3, Q("1 in")),
    Sketcher.Constraint("DistanceX", 12, 3, 10, 3, Q("1 in")),
    Sketcher.Constraint("DistanceX", 13, 3, 11, 3, Q("1 in")),
    Sketcher.Constraint("DistanceX", 14, 3, 12, 3, Q("1 in")),
    Sketcher.Constraint("DistanceX", 15, 3, 13, 3, Q("1 in")),
    Sketcher.Constraint("DistanceX", 16, 3, 14, 3, Q("1 in")),
    Sketcher.Constraint("DistanceX", 17, 3, 15, 3, Q("1 in")),
    Sketcher.Constraint("DistanceX", 18, 3, 16, 3, Q("1 in")),
    Sketcher.Constraint("DistanceX", 19, 3, 17, 3, Q("1 in")),
    Sketcher.Constraint("DistanceX", 20, 3, 18, 3, Q("1 in")),
    Sketcher.Constraint("DistanceX", 21, 3, 19, 3, Q("1 in")),
    Sketcher.Constraint("DistanceX", 22, 3, 20, 3, Q("1 in")),
    Sketcher.Constraint("DistanceX", 23, 3, 21, 3, Q("1 in")),
    Sketcher.Constraint("DistanceX", 24, 3, 22, 3, Q("1 in")),
    Sketcher.Constraint("DistanceX", 25, 3, 23, 3, Q("1 in")),
    Sketcher.Constraint("DistanceX", 26, 3, 24, 3, Q("1 in")),
    Sketcher.Constraint("DistanceX", 27, 3, 25, 3, Q("1 in")),
    Sketcher.Constraint("DistanceX", 28, 3, 26, 3, Q("1 in")),
    Sketcher.Constraint("DistanceX", 29, 3, 27, 3, Q("1 in")),
    Sketcher.Constraint("DistanceX", 30, 3, 28, 3, Q("1 in")),
    Sketcher.Constraint("DistanceX", 31, 3, 29, 3, Q("1 in")),
    Sketcher.Constraint("DistanceX", 32, 3, 30, 3, Q("1 in")),
    Sketcher.Constraint("DistanceX", 33, 3, 31, 3, Q("1 in")),
    Sketcher.Constraint("DistanceX", 34, 3, 32, 3, Q("1 in")),
    Sketcher.Constraint("DistanceX", 35, 3, 33, 3, Q("1 in")),
    Sketcher.Constraint("DistanceX", 36, 3, 34, 3, Q("1 in")),
    Sketcher.Constraint("DistanceX", 37, 3, 35, 3, Q("1 in")),
    Sketcher.Constraint("DistanceX", 38, 3, 36, 3, Q("1 in")),
    Sketcher.Constraint("DistanceX", 39, 3, 37, 3, Q("1 in")),
    Sketcher.Constraint("DistanceX", 40, 3, 38, 3, Q("1 in")),
    Sketcher.Constraint("DistanceX", 41, 3, 39, 3, Q("1 in")),
    Sketcher.Constraint("DistanceX", 42, 3, 40, 3, Q("1 in")),
    Sketcher.Constraint("DistanceX", 43, 3, 41, 3, Q("1 in")),
    Sketcher.Constraint("DistanceX", 44, 3, 42, 3, Q("1 in")),
    Sketcher.Constraint("DistanceX", 45, 3, 43, 3, Q("1 in")),
    Sketcher.Constraint("DistanceX", 46, 3, 44, 3, Q("1 in")),
    Sketcher.Constraint("DistanceX", 47, 3, 45, 3, Q("1 in")),
    Sketcher.Constraint("DistanceX", 48, 3, 46, 3, Q("1 in")),
    Sketcher.Constraint("DistanceX", 49, 3, 47, 3, Q("1 in")),
    Sketcher.Constraint("DistanceX", 50, 3, 48, 3, Q("1 in")),
    Sketcher.Constraint("DistanceX", 51, 3, 49, 3, Q("1 in")),
    Sketcher.Constraint("DistanceX", 52, 3, 50, 3, Q("1 in")),
    Sketcher.Constraint("DistanceX", 1, 3, 0, 3, Q("0.5 in")),
    Sketcher.Constraint("DistanceX", -1, 1, 0, 3, Q("26.75 in")),
    Sketcher.Constraint("DistanceY", -1, 1, 0, 3, Q("0.655 in")),
])
doc.recompute()
hole3 = body.newObject("PartDesign::Hole", "Hole002")
hole3.Profile = sketch6
hole3.ThreadType = "None"
hole3.Diameter = Q("0.21 in")
hole3.DepthType = "Dimension"
hole3.Depth = Q("3.33 in")
hole3.DrillPoint = "Flat"
hole3.Reversed = True
doc.recompute()

fillet = body.newObject("PartDesign::Fillet", "Fillet")
fillet.Base = (hole3, edges_at(hole3, [(349.25, 3.175, 0), (349.25, 3.175, -78.232)]))
fillet.Radius = Q("0.03 in")
doc.recompute()

fillet2 = body.newObject("PartDesign::Fillet", "Fillet001")
fillet2.Base = (fillet, edges_at(fillet, [(349.25, 0, -81.407), (349.25, 0, 3.175)]))
fillet2.Radius = Q("0.155 in")

# Sketch on XZ plane
sketch7 = body.newObject("Sketcher::SketchObject", "Sketch006")
sketch7.AttachmentSupport = (doc.getObject("XZ_Plane"), [""])
sketch7.MapMode = "FlatFace"
sketch7.addGeometry([
    Part.LineSegment(V(624.7, 51.380807, 0), V(624.7, -120.764326, 0)),
    Part.LineSegment(V(624.7, -120.764326, 0), V(685.8, -120.764326, 0)),
    Part.LineSegment(V(685.8, -120.764326, 0), V(685.8, 51.380807, 0)),
    Part.LineSegment(V(685.8, 51.380807, 0), V(624.7, 51.380807, 0)),
], False)
sketch7.addConstraint([
    Sketcher.Constraint("Coincident", 0, 2, 1, 1),
    Sketcher.Constraint("Coincident", 1, 2, 2, 1),
    Sketcher.Constraint("Coincident", 2, 2, 3, 1),
    Sketcher.Constraint("Coincident", 3, 2, 0, 1),
    Sketcher.Constraint("Vertical", 0),
    Sketcher.Constraint("Horizontal", 1),
    Sketcher.Constraint("Vertical", 2),
    Sketcher.Constraint("Horizontal", 3),
    Sketcher.Constraint("DistanceX", -1, 1, 1, 2, Q("27 in")),
    Sketcher.Constraint("DistanceX", 1, 1, 1, 2, Q("61.1 mm")),
    Sketcher.Constraint("DistanceY", 0, 2, 0, 1, Q("172.145133 mm")),
    Sketcher.Constraint("DistanceY", 0, 2, -1, 1, Q("120.764326 mm")),
])
pocket2 = body.newObject("PartDesign::Pocket", "Pocket001")
pocket2.Profile = sketch7
pocket2.Type = "ThroughAll"

doc.recompute()
